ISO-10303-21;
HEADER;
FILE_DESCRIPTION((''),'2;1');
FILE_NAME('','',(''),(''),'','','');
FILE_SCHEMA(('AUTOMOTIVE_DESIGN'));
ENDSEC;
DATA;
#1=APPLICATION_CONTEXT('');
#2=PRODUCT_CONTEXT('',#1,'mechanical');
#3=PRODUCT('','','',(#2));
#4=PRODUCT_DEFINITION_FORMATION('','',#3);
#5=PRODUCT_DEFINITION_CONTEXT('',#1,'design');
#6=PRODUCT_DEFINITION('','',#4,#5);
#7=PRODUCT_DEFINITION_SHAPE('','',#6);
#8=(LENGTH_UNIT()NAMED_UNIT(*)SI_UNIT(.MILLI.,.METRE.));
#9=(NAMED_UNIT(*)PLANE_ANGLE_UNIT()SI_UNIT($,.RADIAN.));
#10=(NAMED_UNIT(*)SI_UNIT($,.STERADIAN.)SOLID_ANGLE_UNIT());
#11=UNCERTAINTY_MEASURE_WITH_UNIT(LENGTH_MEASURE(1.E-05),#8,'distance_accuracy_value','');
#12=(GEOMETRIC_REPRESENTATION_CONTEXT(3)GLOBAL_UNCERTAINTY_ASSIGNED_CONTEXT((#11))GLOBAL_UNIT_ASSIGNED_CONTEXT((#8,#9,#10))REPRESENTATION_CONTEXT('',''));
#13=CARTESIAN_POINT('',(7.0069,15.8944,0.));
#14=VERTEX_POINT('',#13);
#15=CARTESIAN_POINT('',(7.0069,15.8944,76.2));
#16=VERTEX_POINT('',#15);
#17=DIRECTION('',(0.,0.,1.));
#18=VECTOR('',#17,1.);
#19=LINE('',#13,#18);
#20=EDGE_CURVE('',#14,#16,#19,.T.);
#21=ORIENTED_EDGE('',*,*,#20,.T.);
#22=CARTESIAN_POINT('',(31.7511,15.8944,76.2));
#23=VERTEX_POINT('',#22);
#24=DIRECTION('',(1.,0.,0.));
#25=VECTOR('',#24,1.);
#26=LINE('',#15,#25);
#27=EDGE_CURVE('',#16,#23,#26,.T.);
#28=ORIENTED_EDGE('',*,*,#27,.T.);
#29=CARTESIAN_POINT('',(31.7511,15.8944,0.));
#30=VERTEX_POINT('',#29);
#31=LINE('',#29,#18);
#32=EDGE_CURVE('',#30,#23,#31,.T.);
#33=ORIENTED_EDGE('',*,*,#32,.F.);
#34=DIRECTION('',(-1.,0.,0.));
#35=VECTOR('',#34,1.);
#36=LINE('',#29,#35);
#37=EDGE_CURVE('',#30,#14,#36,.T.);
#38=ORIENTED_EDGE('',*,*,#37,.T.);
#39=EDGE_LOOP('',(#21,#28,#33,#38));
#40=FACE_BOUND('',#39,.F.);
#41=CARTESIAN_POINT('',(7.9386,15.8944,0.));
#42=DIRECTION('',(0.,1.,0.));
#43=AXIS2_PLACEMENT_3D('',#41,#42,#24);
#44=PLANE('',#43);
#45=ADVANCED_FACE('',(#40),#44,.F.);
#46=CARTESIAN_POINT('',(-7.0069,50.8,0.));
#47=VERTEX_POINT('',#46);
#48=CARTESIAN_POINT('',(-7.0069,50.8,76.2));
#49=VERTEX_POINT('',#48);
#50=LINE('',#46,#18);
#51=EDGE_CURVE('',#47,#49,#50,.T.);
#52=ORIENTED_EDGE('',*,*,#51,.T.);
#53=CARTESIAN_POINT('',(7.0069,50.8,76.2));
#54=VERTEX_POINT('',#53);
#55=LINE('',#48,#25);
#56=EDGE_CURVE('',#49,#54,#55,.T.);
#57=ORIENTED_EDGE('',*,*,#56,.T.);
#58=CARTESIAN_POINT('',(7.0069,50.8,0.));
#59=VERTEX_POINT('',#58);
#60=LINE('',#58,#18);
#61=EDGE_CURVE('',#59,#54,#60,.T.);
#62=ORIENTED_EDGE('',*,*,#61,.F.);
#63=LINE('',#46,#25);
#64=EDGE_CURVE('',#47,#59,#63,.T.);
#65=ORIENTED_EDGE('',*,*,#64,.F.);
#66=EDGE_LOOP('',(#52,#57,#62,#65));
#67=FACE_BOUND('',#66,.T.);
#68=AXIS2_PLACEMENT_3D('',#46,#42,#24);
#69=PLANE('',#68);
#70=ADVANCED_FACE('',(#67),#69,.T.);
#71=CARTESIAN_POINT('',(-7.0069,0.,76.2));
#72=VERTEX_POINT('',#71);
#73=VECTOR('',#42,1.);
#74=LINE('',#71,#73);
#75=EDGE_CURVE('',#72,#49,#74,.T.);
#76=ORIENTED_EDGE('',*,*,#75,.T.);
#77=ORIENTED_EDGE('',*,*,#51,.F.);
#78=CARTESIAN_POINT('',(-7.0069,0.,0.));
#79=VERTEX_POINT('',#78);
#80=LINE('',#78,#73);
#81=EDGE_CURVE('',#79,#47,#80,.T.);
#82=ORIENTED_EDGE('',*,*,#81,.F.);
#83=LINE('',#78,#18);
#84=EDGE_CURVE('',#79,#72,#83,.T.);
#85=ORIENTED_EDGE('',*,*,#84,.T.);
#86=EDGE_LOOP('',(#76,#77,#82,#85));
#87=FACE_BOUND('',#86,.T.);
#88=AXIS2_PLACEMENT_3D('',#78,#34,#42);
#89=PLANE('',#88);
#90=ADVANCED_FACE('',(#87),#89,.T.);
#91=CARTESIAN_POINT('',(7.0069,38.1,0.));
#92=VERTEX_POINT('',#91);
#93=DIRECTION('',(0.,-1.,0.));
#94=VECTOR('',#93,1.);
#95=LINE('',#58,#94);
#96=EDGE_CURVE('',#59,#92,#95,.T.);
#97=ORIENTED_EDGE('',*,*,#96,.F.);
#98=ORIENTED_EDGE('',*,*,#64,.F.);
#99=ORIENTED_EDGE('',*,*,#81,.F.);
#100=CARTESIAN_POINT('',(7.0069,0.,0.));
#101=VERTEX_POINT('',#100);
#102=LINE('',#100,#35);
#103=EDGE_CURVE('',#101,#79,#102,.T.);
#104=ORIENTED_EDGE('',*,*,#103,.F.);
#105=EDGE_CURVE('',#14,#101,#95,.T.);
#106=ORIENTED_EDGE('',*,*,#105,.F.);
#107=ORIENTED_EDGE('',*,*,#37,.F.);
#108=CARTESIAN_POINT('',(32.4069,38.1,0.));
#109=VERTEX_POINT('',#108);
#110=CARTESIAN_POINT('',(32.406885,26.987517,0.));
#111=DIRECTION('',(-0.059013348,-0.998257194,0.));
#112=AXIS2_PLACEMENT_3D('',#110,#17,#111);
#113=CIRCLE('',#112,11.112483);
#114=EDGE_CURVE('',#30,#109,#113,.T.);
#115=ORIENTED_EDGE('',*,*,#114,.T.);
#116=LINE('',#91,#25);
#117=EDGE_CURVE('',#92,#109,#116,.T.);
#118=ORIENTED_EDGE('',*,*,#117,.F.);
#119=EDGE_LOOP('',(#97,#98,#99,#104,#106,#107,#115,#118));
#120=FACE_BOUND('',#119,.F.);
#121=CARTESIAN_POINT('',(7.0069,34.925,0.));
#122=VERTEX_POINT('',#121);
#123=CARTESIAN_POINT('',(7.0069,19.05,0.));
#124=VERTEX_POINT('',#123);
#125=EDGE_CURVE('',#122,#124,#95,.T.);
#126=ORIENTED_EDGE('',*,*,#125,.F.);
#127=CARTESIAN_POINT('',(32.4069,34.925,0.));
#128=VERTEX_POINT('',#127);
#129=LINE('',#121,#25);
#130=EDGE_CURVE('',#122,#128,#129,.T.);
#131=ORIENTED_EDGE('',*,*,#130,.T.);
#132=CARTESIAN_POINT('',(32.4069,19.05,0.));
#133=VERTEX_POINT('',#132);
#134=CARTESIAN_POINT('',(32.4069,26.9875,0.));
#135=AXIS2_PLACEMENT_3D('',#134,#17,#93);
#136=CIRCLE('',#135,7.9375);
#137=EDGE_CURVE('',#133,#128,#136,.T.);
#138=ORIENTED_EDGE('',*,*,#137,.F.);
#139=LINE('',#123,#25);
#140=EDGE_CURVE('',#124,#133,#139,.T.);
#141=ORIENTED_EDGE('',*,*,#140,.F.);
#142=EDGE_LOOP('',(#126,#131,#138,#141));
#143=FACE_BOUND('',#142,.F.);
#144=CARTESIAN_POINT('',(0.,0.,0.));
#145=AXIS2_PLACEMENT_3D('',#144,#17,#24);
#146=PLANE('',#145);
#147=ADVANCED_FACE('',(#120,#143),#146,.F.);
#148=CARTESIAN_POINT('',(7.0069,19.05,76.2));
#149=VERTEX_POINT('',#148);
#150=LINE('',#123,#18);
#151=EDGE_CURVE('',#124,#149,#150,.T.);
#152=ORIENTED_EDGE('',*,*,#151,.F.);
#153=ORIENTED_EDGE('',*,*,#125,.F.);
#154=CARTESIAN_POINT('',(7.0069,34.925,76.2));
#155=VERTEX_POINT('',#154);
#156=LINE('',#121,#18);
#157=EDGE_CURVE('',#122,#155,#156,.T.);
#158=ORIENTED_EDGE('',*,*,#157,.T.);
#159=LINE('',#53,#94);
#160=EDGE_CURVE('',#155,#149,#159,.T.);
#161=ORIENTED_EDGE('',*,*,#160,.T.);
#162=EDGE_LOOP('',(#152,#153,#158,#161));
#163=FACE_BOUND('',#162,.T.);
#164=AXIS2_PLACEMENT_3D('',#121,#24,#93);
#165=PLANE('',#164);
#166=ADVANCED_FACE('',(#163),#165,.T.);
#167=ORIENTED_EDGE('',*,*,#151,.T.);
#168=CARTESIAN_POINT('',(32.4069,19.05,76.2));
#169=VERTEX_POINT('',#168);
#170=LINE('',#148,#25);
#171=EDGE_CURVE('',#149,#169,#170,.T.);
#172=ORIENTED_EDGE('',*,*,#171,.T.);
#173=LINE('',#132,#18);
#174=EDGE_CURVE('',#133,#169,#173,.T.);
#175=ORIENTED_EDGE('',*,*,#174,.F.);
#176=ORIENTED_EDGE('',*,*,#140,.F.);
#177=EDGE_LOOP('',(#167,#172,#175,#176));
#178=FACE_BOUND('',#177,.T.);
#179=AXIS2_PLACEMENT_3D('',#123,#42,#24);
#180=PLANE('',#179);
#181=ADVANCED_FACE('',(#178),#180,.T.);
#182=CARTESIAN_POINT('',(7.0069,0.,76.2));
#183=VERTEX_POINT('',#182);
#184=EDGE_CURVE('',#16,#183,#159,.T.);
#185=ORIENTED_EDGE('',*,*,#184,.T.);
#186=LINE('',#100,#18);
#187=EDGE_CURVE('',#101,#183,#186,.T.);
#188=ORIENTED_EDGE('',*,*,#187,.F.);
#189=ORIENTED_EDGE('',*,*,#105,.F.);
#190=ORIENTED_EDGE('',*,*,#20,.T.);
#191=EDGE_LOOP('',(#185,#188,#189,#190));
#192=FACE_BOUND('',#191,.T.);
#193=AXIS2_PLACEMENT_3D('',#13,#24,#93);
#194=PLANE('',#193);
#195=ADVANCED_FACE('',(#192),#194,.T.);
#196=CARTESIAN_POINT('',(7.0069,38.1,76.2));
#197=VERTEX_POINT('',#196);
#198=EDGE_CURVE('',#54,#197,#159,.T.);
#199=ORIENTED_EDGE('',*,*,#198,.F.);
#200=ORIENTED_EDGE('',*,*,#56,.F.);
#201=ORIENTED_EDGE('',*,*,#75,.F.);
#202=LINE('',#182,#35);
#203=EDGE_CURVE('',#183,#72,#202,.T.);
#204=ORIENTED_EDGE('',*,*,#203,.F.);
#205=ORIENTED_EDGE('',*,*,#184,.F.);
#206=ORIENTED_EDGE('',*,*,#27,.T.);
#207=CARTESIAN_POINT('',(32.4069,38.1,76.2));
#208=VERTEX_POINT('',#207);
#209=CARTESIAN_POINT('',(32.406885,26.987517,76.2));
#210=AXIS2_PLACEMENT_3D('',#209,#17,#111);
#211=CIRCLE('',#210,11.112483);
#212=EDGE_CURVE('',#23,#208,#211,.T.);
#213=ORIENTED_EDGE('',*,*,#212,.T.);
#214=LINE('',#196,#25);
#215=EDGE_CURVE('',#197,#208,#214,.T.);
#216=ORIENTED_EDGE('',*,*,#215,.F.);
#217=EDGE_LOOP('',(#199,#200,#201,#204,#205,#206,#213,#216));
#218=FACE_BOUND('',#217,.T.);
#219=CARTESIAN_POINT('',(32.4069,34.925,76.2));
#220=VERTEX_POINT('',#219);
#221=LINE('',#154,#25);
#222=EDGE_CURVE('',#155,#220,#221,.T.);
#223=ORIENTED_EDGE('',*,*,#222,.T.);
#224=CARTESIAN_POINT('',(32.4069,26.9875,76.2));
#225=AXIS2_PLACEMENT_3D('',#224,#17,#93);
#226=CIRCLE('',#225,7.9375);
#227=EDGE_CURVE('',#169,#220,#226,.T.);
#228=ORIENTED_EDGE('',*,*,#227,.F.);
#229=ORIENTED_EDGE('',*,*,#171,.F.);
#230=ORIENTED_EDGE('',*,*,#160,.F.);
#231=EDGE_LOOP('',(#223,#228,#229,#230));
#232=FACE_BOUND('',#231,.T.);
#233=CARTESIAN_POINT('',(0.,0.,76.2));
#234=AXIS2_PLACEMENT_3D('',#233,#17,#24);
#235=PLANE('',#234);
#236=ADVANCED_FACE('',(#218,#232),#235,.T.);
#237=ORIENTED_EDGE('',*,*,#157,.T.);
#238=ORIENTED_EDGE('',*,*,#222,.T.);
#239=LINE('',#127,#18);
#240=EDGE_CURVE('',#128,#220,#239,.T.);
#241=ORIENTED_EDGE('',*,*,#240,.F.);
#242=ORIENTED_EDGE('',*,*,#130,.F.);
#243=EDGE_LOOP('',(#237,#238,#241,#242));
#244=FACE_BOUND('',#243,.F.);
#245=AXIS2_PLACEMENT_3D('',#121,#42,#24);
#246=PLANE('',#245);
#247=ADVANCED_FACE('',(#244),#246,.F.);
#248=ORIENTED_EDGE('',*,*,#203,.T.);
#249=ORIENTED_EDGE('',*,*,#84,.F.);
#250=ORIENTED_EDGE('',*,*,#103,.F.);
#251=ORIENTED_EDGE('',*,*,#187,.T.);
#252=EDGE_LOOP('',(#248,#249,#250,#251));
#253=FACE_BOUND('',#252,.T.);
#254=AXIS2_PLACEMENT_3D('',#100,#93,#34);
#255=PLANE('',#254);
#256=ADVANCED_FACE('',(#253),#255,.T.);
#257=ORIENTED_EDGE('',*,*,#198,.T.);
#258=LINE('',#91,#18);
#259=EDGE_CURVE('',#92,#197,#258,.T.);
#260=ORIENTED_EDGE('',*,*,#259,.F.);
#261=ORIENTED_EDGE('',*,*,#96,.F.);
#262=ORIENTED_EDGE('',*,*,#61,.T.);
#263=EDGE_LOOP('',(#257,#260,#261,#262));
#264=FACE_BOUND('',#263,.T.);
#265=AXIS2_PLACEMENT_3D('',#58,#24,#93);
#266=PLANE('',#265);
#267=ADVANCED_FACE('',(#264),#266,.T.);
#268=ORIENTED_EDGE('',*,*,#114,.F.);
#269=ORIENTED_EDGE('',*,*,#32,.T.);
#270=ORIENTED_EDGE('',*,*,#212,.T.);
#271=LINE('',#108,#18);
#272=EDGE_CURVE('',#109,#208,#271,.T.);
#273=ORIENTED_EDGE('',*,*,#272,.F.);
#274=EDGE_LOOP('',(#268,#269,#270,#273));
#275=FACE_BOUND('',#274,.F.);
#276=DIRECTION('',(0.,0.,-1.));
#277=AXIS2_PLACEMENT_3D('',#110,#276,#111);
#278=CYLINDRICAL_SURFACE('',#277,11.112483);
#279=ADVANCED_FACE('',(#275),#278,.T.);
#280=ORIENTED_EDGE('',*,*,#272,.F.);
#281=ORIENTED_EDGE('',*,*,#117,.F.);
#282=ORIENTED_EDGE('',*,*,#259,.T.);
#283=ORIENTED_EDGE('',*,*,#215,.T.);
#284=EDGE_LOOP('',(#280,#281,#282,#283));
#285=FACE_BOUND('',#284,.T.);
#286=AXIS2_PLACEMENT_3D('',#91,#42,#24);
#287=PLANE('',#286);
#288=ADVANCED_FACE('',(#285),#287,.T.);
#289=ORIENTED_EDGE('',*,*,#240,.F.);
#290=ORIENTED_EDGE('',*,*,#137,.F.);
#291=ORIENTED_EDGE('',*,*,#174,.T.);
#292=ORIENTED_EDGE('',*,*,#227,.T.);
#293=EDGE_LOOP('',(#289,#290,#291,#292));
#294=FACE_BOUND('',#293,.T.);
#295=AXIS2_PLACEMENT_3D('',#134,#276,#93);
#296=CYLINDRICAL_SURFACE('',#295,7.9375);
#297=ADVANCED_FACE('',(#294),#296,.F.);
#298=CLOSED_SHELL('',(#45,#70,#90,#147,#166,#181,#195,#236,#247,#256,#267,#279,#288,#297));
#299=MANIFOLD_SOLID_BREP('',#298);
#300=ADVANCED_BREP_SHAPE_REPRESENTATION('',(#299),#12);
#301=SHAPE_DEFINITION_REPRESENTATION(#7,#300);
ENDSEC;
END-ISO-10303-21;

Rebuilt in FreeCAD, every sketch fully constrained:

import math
import FreeCAD as App
import Part
import Sketcher

V = App.Vector
Q = App.Units.Quantity

doc = App.newDocument("Part")
body = doc.addObject("PartDesign::Body", "Body")

sketch1 = body.newObject("Sketcher::SketchObject", "Sketch")
sketch1.AttachmentSupport = (doc.getObject("XY_Plane"), [""])
sketch1.MapMode = "FlatFace"
sketch1.addGeometry(Part.LineSegment(V(7, 51, 0), V(-7, 51, 0)), False)
sketch1.addGeometry(Part.LineSegment(V(-7, 51, 0), V(-7, 0, 0)), False)
sketch1.addGeometry(Part.LineSegment(V(-7, 0, 0), V(7, 0, 0)), False)
sketch1.addGeometry(Part.LineSegment(V(7, 0, 0), V(7, 16, 0)), False)
sketch1.addGeometry(Part.LineSegment(V(7, 16, 0), V(32, 16, 0)), False)
sketch1.addGeometry(Part.ArcOfCircle(Part.Circle(V(32, 27, 0), V(0, 0, 1), 11), math.radians(-93), math.radians(90)), False)
sketch1.addGeometry(Part.LineSegment(V(32, 38, 0), V(7, 38, 0)), False)
sketch1.addGeometry(Part.LineSegment(V(7, 38, 0), V(7, 51, 0)), False)
sketch1.addGeometry(Part.LineSegment(V(7, 19, 0), V(7, 35, 0)), False)
sketch1.addGeometry(Part.LineSegment(V(7, 35, 0), V(32, 35, 0)), False)
sketch1.addGeometry(Part.ArcOfCircle(Part.Circle(V(32, 27, 0), V(0, 0, 1), 8), math.radians(-90), math.radians(90)), False)
sketch1.addGeometry(Part.LineSegment(V(32, 19, 0), V(7, 19, 0)), False)
sketch1.addConstraint(Sketcher.Constraint("Coincident", 0, 2, 1, 1))
sketch1.addConstraint(Sketcher.Constraint("Coincident", 1, 2, 2, 1))
sketch1.addConstraint(Sketcher.Constraint("Coincident", 2, 2, 3, 1))
sketch1.addConstraint(Sketcher.Constraint("Coincident", 3, 2, 4, 1))
sketch1.addConstraint(Sketcher.Constraint("Coincident", 4, 2, 5, 1))
sketch1.addConstraint(Sketcher.Constraint("Tangent", 5, 2, 6, 1))
sketch1.addConstraint(Sketcher.Constraint("Coincident", 6, 2, 7, 1))
sketch1.addConstraint(Sketcher.Constraint("Coincident", 7, 2, 0, 1))
sketch1.addConstraint(Sketcher.Constraint("Coincident", 8, 2, 9, 1))
sketch1.addConstraint(Sketcher.Constraint("Tangent", 9, 2, 10, 2))
sketch1.addConstraint(Sketcher.Constraint("Tangent", 10, 1, 11, 1))
sketch1.addConstraint(Sketcher.Constraint("Coincident", 11, 2, 8, 1))
sketch1.addConstraint(Sketcher.Constraint("Horizontal", 0))
sketch1.addConstraint(Sketcher.Constraint("Vertical", 1))
sketch1.addConstraint(Sketcher.Constraint("Horizontal", 2))
sketch1.addConstraint(Sketcher.Constraint("Vertical", 3))
sketch1.addConstraint(Sketcher.Constraint("Horizontal", 4))
sketch1.addConstraint(Sketcher.Constraint("Horizontal", 6))
sketch1.addConstraint(Sketcher.Constraint("Vertical", 7))
sketch1.addConstraint(Sketcher.Constraint("Vertical", 8))
sketch1.addConstraint(Sketcher.Constraint("Horizontal", 9))
sketch1.addConstraint(Sketcher.Constraint("Horizontal", 11))
sketch1.addConstraint(Sketcher.Constraint("Coincident", 10, 3, 5, 3))
sketch1.addConstraint(Sketcher.Constraint("Symmetric", 1, 2, 2, 2, -1, 1))
sketch1.addConstraint(Sketcher.Constraint("Vertical", 3, 2, 6, 2))
sketch1.addConstraint(Sketcher.Constraint("Vertical", 7, 2, 8, 2))
sketch1.addConstraint(Sketcher.Constraint("DistanceX", 6, 2, 6, 1, Q("1 in")))
sketch1.addConstraint(Sketcher.Constraint("DistanceY", 1, 2, 1, 1, Q("2 in")))
sketch1.addConstraint(Sketcher.Constraint("DistanceY", 7, 1, 7, 2, Q("0.5 in")))
sketch1.addConstraint(Sketcher.Constraint("Radius", 5, Q("0.4375 in")))
sketch1.addConstraint(Sketcher.Constraint("Radius", 10, Q("0.3125 in")))
sketch1.addConstraint(Sketcher.Constraint("DistanceX", 0, 2, 0, 1, 14.0138))
sketch1.addConstraint(Sketcher.Constraint("DistanceX", 4, 1, 4, 2, 24.7442))
pad1 = body.newObject("PartDesign::Pad", "Pad")
pad1.Profile = sketch1
pad1.Length = Q("3 in")

doc.recompute()
